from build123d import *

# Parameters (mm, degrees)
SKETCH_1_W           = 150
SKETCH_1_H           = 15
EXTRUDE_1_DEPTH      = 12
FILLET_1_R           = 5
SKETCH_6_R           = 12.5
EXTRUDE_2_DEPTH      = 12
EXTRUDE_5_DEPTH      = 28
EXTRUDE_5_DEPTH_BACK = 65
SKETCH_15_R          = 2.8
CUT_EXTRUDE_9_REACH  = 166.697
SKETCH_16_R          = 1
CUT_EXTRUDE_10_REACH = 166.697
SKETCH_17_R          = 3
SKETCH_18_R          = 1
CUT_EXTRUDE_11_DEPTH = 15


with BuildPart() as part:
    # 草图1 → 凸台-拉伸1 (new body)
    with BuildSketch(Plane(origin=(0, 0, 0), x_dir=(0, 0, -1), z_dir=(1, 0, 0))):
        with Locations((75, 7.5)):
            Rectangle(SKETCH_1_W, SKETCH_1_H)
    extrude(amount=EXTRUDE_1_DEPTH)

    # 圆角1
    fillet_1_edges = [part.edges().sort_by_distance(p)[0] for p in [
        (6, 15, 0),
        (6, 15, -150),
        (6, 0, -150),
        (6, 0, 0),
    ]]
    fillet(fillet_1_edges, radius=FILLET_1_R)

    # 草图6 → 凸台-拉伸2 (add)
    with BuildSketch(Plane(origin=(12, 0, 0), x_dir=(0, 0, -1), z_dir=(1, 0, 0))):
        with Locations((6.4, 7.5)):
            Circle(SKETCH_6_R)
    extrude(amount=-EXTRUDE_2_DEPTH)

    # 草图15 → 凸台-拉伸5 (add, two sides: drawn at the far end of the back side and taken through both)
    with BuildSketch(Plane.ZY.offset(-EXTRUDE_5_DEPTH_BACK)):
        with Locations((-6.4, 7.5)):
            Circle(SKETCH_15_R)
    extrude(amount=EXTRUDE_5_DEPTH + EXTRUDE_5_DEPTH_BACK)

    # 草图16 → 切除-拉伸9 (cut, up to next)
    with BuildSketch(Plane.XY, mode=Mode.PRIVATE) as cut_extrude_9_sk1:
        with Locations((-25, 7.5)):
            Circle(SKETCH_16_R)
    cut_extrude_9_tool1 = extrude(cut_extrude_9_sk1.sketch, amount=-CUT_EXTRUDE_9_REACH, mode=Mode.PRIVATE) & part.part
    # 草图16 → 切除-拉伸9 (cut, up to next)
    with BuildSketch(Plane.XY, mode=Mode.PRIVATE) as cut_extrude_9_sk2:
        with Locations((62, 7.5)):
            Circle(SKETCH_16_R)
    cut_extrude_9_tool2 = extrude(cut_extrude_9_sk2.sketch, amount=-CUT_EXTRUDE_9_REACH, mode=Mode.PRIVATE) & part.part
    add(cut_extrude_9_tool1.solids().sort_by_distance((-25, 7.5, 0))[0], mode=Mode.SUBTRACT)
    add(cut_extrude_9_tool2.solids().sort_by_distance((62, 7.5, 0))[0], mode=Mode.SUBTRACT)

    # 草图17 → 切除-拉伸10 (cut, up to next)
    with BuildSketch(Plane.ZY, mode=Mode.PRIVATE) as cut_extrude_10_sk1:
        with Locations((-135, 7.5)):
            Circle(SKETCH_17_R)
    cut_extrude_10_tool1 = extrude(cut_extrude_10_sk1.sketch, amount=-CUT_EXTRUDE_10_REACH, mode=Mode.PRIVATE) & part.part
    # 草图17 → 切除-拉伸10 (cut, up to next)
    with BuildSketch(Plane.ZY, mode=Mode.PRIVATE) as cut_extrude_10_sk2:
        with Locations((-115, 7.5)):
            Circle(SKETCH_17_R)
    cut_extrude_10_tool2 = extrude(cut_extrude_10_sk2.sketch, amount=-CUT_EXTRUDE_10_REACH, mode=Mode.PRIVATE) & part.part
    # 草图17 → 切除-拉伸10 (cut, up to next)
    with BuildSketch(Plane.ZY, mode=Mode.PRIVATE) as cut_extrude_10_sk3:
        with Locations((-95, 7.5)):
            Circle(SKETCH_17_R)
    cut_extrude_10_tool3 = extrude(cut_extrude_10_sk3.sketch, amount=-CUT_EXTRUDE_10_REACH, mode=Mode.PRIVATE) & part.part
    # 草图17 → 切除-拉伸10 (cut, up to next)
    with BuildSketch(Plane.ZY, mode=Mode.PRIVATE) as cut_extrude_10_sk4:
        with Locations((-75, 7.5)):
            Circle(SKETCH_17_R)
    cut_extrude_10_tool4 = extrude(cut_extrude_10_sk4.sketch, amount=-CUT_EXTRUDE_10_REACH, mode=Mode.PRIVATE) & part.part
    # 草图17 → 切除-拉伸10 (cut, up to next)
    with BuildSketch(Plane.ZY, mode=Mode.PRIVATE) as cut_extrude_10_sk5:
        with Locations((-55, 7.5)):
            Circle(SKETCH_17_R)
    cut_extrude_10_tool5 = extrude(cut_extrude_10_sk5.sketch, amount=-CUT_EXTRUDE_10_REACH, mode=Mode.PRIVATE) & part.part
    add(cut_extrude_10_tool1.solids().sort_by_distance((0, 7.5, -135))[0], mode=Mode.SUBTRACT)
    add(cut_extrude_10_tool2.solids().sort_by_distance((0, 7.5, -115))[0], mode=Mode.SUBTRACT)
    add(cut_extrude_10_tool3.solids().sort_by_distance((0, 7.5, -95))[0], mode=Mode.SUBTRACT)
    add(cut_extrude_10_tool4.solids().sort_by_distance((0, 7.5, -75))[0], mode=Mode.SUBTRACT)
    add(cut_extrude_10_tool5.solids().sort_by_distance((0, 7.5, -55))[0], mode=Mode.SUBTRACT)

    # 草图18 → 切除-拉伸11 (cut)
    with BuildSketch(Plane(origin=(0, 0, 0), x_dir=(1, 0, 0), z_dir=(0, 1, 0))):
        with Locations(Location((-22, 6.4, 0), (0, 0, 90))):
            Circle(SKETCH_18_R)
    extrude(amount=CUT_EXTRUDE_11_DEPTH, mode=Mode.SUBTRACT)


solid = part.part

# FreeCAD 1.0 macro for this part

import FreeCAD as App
import Part
import Sketcher
from FreeCAD import Vector


def edges_at(feature, points):
    """Names of the edges that pass closest to the given points."""
    edges = feature.Shape.Edges
    near = lambda p: min(range(len(edges)), key=lambda i: edges[i].distToShape(Part.Vertex(*p))[0])
    return sorted({f"Edge{near(p) + 1}" for p in points})

doc = App.newDocument("Part")
body = doc.addObject("PartDesign::Body", "Body")

sketch1 = doc.addObject("Sketcher::SketchObject", "Sketch")
body.addObject(sketch1)
sketch1.AttachmentSupport = (doc.YZ_Plane, [""])
sketch1.MapMode = "FlatFace"
sketch1.addGeometry([
    Part.LineSegment(Vector(15, 0, 0), Vector(0, 0, 0)),
    Part.LineSegment(Vector(0, 0, 0), Vector(0, -150, 0)),
    Part.LineSegment(Vector(0, -150, 0), Vector(15, -150, 0)),
    Part.LineSegment(Vector(15, -150, 0), Vector(15, 0, 0)),
], False)
sketch1.addConstraint([
    Sketcher.Constraint("Coincident", 0, 2, 1, 1),
    Sketcher.Constraint("Coincident", 1, 2, 2, 1),
    Sketcher.Constraint("Coincident", 2, 2, 3, 1),
    Sketcher.Constraint("Coincident", 3, 2, 0, 1),
    Sketcher.Constraint("Horizontal", 0),
    Sketcher.Constraint("Vertical", 1),
    Sketcher.Constraint("Horizontal", 2),
    Sketcher.Constraint("Vertical", 3),
    Sketcher.Constraint("Coincident", 0, 2, -1, 1),
    Sketcher.Constraint("DistanceX", 0, 2, 0, 1, 15.0),
    Sketcher.Constraint("DistanceY", 1, 2, 1, 1, 150.0),
])
pad1 = doc.addObject("PartDesign::Pad", "Pad")
body.addObject(pad1)
pad1.Profile = sketch1
pad1.Length = 12
doc.recompute()

fillet = doc.addObject("PartDesign::Fillet", "Fillet")
body.addObject(fillet)
fillet.Base = (pad1, edges_at(pad1, [
    (6, 15, 0),
    (6, 15, -150),
    (6, 0, -150),
    (6, 0, 0),
]))
fillet.Radius = 5

sketch2 = doc.addObject("Sketcher::SketchObject", "Sketch001")
body.addObject(sketch2)
sketch2.AttachmentSupport = (doc.YZ_Plane, [""])
sketch2.MapMode = "FlatFace"
sketch2.AttachmentOffset = App.Placement(Vector(0, 0, 12), App.Rotation())
sketch2.addGeometry(Part.Circle(Vector(8, -6, 0), Vector(0, 0, 1), 12), False)
sketch2.addConstraint([
    Sketcher.Constraint("Diameter", 0, 25.0),
    Sketcher.Constraint("DistanceX", -1, 1, 0, 3, 7.5),
    Sketcher.Constraint("DistanceY", 0, 3, -1, 1, 6.4),
])
pad2 = doc.addObject("PartDesign::Pad", "Pad001")
body.addObject(pad2)
pad2.Profile = sketch2
pad2.Length = 12
pad2.Reversed = True

sketch3 = doc.addObject("Sketcher::SketchObject", "Sketch002")
body.addObject(sketch3)
sketch3.AttachmentSupport = (doc.YZ_Plane, [""])
sketch3.MapMode = "FlatFace"
sketch3.addGeometry(Part.Circle(Vector(7.5, -6.4, 0), Vector(0, 0, 1), 2.8), False)
sketch3.addConstraint([
    Sketcher.Constraint("Diameter", 0, 5.6),
    Sketcher.Constraint("DistanceX", -1, 1, 0, 3, 7.5),
    Sketcher.Constraint("DistanceY", 0, 3, -1, 1, 6.4),
])
pad3 = doc.addObject("PartDesign::Pad", "Pad002")
body.addObject(pad3)
pad3.Profile = sketch3
pad3.Type = "TwoLengths"
pad3.Length = 28
pad3.Length2 = 65
pad3.Reversed = True

sketch4 = doc.addObject("Sketcher::SketchObject", "Sketch003")
body.addObject(sketch4)
sketch4.AttachmentSupport = (doc.XY_Plane, [""])
sketch4.MapMode = "FlatFace"
sketch4.addGeometry(Part.Circle(Vector(-25, 7.5, 0), Vector(0, 0, 1), 1), False)
sketch4.addConstraint([
    Sketcher.Constraint("Diameter", 0, 2.0),
    Sketcher.Constraint("DistanceX", 0, 3, -1, 1, 25.0),
    Sketcher.Constraint("DistanceY", -1, 1, 0, 3, 7.5),
])
pocket1 = doc.addObject("PartDesign::Pocket", "Pocket")
body.addObject(pocket1)
pocket1.Profile = sketch4
pocket1.Length = 9.2

sketch5 = doc.addObject("Sketcher::SketchObject", "Sketch004")
body.addObject(sketch5)
sketch5.AttachmentSupport = (doc.XY_Plane, [""])
sketch5.MapMode = "FlatFace"
sketch5.addGeometry(Part.Circle(Vector(62, 7.5, 0), Vector(0, 0, 1), 1), False)
sketch5.addConstraint([
    Sketcher.Constraint("Diameter", 0, 2.0),
    Sketcher.Constraint("DistanceX", -1, 1, 0, 3, 62.0),
    Sketcher.Constraint("DistanceY", -1, 1, 0, 3, 7.5),
])
pocket2 = doc.addObject("PartDesign::Pocket", "Pocket001")
body.addObject(pocket2)
pocket2.Profile = sketch5
pocket2.Length = 9.2

sketch6 = doc.addObject("Sketcher::SketchObject", "Sketch005")
body.addObject(sketch6)
sketch6.AttachmentSupport = (doc.YZ_Plane, [""])
sketch6.MapMode = "FlatFace"
sketch6.addGeometry(Part.Circle(Vector(7.5, -135, 0), Vector(0, 0, 1), 3), False)
sketch6.addConstraint([
    Sketcher.Constraint("Diameter", 0, 6.0),
    Sketcher.Constraint("DistanceY", 0, 3, -1, 1, 135.0),
    Sketcher.Constraint("DistanceX", -1, 1, 0, 3, 7.5),
])
pocket3 = doc.addObject("PartDesign::Pocket", "Pocket002")
body.addObject(pocket3)
pocket3.Profile = sketch6
pocket3.Type = "UpToFirst"
pocket3.Reversed = True

sketch7 = doc.addObject("Sketcher::SketchObject", "Sketch006")
body.addObject(sketch7)
sketch7.AttachmentSupport = (doc.YZ_Plane, [""])
sketch7.MapMode = "FlatFace"
sketch7.addGeometry(Part.Circle(Vector(7.5, -115, 0), Vector(0, 0, 1), 3), False)
sketch7.addConstraint([
    Sketcher.Constraint("Diameter", 0, 6.0),
    Sketcher.Constraint("DistanceY", 0, 3, -1, 1, 115.0),
    Sketcher.Constraint("DistanceX", -1, 1, 0, 3, 7.5),
])
pocket4 = doc.addObject("PartDesign::Pocket", "Pocket003")
body.addObject(pocket4)
pocket4.Profile = sketch7
pocket4.Type = "UpToFirst"
pocket4.Reversed = True

sketch8 = doc.addObject("Sketcher::SketchObject", "Sketch007")
body.addObject(sketch8)
sketch8.AttachmentSupport = (doc.YZ_Plane, [""])
sketch8.MapMode = "FlatFace"
sketch8.addGeometry(Part.Circle(Vector(7.5, -95, 0), Vector(0, 0, 1), 3), False)
sketch8.addConstraint([
    Sketcher.Constraint("Diameter", 0, 6.0),
    Sketcher.Constraint("DistanceY", 0, 3, -1, 1, 95.0),
    Sketcher.Constraint("DistanceX", -1, 1, 0, 3, 7.5),
])
pocket5 = doc.addObject("PartDesign::Pocket", "Pocket004")
body.addObject(pocket5)
pocket5.Profile = sketch8
pocket5.Type = "UpToFirst"
pocket5.Reversed = True

sketch9 = doc.addObject("Sketcher::SketchObject", "Sketch008")
body.addObject(sketch9)
sketch9.AttachmentSupport = (doc.YZ_Plane, [""])
sketch9.MapMode = "FlatFace"
sketch9.addGeometry(Part.Circle(Vector(7.5, -75, 0), Vector(0, 0, 1), 3), False)
sketch9.addConstraint([
    Sketcher.Constraint("Diameter", 0, 6.0),
    Sketcher.Constraint("DistanceY", 0, 3, -1, 1, 75.0),
    Sketcher.Constraint("DistanceX", -1, 1, 0, 3, 7.5),
])
pocket6 = doc.addObject("PartDesign::Pocket", "Pocket005")
body.addObject(pocket6)
pocket6.Profile = sketch9
pocket6.Type = "UpToFirst"
pocket6.Reversed = True

sketch10 = doc.addObject("Sketcher::SketchObject", "Sketch009")
body.addObject(sketch10)
sketch10.AttachmentSupport = (doc.YZ_Plane, [""])
sketch10.MapMode = "FlatFace"
sketch10.addGeometry(Part.Circle(Vector(7.5, -55, 0), Vector(0, 0, 1), 3), False)
sketch10.addConstraint([
    Sketcher.Constraint("Diameter", 0, 6.0),
    Sketcher.Constraint("DistanceY", 0, 3, -1, 1, 55.0),
    Sketcher.Constraint("DistanceX", -1, 1, 0, 3, 7.5),
])
pocket7 = doc.addObject("PartDesign::Pocket", "Pocket006")
body.addObject(pocket7)
pocket7.Profile = sketch10
pocket7.Type = "UpToFirst"
pocket7.Reversed = True

sketch11 = doc.addObject("Sketcher::SketchObject", "Sketch010")
body.addObject(sketch11)
sketch11.AttachmentSupport = (doc.XZ_Plane, [""])
sketch11.MapMode = "FlatFace"
sketch11.addGeometry(Part.Circle(Vector(-22, -6.4, 0), Vector(0, 0, 1), 1), False)
sketch11.addConstraint([
    Sketcher.Constraint("Diameter", 0, 2.0),
    Sketcher.Constraint("DistanceX", 0, 3, -1, 1, 22.0),
    Sketcher.Constraint("DistanceY", 0, 3, -1, 1, 6.4),
])
pocket8 = doc.addObject("PartDesign::Pocket", "Pocket007")
body.addObject(pocket8)
pocket8.Profile = sketch11
pocket8.Length = 15

doc.recompute()
